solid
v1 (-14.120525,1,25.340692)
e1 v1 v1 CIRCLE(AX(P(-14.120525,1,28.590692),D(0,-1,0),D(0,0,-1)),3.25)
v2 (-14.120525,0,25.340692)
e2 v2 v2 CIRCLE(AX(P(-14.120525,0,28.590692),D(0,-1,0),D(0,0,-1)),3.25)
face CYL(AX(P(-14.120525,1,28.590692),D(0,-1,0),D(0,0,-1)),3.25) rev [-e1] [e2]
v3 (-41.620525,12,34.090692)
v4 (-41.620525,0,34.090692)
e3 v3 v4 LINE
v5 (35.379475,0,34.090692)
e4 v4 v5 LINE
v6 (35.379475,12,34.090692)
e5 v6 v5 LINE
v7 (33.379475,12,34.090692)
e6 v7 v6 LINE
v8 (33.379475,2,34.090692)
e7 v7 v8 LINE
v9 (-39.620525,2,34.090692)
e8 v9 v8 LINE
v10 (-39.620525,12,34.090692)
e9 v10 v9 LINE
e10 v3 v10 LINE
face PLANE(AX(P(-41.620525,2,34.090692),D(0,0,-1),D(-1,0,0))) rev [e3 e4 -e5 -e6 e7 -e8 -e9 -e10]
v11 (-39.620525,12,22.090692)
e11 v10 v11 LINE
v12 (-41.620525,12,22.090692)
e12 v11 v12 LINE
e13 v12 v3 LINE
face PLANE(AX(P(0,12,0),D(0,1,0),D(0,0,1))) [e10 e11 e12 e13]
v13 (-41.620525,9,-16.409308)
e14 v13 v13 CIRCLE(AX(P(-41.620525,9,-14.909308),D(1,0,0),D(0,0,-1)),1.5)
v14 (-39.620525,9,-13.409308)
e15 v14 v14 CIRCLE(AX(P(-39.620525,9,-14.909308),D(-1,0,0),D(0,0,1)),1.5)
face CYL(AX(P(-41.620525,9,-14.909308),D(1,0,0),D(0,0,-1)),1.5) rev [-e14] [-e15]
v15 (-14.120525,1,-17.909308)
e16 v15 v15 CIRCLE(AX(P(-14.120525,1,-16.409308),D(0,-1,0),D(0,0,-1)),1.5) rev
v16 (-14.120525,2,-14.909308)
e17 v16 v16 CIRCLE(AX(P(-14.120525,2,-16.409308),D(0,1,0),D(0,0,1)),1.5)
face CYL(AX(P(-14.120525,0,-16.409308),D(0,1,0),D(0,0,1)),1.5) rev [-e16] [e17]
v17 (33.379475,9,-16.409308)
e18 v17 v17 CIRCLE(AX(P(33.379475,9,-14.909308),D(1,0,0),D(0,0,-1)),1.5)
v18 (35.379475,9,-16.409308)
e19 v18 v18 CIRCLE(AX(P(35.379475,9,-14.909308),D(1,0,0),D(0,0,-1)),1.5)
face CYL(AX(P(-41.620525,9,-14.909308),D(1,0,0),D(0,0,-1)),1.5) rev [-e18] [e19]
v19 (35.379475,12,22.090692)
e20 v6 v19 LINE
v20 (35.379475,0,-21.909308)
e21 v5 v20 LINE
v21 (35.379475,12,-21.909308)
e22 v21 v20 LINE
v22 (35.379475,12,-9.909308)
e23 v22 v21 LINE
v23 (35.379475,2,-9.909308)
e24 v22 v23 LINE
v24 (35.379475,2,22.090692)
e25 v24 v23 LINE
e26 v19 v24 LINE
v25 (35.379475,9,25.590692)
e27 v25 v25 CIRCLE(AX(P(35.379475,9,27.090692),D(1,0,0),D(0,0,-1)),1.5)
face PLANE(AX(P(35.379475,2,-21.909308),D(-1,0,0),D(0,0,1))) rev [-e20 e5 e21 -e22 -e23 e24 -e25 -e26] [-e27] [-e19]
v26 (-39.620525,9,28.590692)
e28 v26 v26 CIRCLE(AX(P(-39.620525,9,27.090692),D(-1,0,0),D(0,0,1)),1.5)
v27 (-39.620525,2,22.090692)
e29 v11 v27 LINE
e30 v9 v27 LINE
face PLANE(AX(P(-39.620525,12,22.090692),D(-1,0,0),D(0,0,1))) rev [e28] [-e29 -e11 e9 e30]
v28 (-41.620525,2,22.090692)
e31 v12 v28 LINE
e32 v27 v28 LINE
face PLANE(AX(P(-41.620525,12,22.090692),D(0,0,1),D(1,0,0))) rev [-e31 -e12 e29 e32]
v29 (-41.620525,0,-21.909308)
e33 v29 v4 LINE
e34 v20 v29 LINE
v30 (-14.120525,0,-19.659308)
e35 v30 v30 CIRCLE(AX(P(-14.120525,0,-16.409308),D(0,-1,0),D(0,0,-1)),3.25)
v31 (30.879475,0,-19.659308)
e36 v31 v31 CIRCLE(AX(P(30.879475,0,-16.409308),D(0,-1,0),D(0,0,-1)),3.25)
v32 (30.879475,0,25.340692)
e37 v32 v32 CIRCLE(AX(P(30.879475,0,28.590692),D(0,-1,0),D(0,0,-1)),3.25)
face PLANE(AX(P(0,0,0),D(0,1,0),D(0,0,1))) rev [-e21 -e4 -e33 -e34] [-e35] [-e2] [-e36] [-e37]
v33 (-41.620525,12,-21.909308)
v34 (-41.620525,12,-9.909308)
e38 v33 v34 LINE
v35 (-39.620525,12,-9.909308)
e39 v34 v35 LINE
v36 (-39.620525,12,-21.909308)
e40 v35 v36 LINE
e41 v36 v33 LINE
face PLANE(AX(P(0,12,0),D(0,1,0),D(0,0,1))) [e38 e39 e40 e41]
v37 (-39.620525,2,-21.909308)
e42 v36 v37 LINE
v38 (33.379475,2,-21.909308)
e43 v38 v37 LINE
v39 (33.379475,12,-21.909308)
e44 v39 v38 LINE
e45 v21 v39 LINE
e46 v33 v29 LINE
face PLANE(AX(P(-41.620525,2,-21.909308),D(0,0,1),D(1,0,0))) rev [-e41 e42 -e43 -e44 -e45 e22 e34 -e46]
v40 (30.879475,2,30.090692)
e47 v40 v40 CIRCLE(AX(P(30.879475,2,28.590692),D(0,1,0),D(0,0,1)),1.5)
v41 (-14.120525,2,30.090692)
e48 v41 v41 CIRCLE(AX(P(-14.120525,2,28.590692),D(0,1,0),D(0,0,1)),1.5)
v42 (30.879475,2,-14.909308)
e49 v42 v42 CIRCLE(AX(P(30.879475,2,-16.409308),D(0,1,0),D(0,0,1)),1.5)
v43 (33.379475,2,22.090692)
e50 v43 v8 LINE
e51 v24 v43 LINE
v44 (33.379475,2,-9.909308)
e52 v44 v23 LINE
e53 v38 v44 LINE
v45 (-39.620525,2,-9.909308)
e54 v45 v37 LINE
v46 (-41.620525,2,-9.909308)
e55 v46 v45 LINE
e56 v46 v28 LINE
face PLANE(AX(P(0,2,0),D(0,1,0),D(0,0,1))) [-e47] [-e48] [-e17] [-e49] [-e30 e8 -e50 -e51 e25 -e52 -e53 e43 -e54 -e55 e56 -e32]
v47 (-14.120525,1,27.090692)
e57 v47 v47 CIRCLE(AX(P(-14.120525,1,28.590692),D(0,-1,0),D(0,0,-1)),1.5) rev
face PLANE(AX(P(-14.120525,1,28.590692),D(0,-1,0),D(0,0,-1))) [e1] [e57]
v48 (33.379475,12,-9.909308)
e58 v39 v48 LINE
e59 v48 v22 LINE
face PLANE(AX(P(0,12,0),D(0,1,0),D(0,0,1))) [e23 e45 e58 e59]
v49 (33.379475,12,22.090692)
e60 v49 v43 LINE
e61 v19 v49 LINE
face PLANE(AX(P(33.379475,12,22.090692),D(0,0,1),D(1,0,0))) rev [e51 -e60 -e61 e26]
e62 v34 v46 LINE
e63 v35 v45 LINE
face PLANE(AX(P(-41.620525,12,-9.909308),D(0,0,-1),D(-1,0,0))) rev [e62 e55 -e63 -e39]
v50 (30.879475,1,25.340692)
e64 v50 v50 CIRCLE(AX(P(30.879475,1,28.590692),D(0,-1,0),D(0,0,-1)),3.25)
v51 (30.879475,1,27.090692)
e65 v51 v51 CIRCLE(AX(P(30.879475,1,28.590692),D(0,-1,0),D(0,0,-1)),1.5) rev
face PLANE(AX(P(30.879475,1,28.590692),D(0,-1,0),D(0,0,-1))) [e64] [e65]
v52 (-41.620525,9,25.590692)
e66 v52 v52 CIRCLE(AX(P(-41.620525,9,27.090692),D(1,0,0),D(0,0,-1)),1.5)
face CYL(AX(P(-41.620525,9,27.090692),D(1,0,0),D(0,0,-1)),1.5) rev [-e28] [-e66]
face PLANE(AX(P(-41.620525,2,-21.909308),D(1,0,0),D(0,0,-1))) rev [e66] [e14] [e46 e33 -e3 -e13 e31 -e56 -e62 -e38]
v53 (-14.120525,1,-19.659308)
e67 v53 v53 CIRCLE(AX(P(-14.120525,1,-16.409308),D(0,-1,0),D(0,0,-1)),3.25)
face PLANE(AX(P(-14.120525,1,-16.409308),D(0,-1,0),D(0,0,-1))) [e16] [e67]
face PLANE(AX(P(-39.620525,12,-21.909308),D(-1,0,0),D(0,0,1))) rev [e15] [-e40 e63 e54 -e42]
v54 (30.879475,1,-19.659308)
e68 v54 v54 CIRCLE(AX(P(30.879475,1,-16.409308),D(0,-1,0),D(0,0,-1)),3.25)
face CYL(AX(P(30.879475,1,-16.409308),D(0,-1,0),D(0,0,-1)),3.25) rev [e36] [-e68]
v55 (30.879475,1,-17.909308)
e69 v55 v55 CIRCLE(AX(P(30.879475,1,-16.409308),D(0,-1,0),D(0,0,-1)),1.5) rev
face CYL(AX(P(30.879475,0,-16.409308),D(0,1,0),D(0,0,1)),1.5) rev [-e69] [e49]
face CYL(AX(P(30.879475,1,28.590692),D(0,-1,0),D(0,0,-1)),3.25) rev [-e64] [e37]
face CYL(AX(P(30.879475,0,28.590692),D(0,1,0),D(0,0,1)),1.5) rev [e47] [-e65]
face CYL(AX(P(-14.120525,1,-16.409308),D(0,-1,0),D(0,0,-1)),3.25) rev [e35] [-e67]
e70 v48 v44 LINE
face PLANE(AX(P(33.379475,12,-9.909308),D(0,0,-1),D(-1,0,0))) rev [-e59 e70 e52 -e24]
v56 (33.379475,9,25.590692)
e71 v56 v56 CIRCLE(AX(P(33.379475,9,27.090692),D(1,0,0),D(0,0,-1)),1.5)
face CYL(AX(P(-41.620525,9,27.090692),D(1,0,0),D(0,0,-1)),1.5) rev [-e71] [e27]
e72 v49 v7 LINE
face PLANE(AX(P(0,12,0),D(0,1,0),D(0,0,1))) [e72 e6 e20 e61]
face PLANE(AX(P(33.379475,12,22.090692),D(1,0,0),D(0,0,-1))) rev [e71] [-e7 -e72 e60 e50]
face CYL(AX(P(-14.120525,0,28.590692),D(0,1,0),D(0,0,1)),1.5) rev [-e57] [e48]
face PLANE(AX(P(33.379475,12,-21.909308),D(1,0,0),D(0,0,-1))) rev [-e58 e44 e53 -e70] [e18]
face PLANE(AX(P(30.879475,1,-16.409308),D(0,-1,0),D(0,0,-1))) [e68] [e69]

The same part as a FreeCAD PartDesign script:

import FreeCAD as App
import Part
import Sketcher
from FreeCAD import Vector
Q = App.Units.Quantity

doc = App.newDocument("Part")
body = doc.addObject("PartDesign::Body", "Body")

sketch1 = body.newObject("Sketcher::SketchObject", "Sketch")
sketch1.AttachmentSupport = (doc.getObject("XZ_Plane"), [""])
sketch1.MapMode = "FlatFace"
sketch1.addGeometry([
    Part.LineSegment(Vector(-41.620525, -21.909308, 0), Vector(-41.620525, 34.090692, 0)),
    Part.LineSegment(Vector(-41.620525, 34.090692, 0), Vector(35.379475, 34.090692, 0)),
    Part.LineSegment(Vector(35.379475, 34.090692, 0), Vector(35.379475, -21.909308, 0)),
    Part.LineSegment(Vector(35.379475, -21.909308, 0), Vector(-41.620525, -21.909308, 0)),
], False)
sketch1.addConstraint([
    Sketcher.Constraint("Coincident", 0, 2, 1, 1),
    Sketcher.Constraint("Coincident", 1, 2, 2, 1),
    Sketcher.Constraint("Coincident", 2, 2, 3, 1),
    Sketcher.Constraint("Coincident", 3, 2, 0, 1),
    Sketcher.Constraint("Vertical", 0),
    Sketcher.Constraint("Horizontal", 1),
    Sketcher.Constraint("Vertical", 2),
    Sketcher.Constraint("Horizontal", 3),
    Sketcher.Constraint("DistanceX", 1, 1, 1, 2, Q("77 mm")),
    Sketcher.Constraint("DistanceY", 0, 1, 0, 2, Q("56 mm")),
    Sketcher.Constraint("DistanceX", 0, 2, -1, 1, Q("41.620525 mm")),
    Sketcher.Constraint("DistanceY", -1, 1, 0, 2, Q("34.090692 mm")),
])
pad1 = body.newObject("PartDesign::Pad", "Pad")
pad1.Profile = sketch1
pad1.Length = 2
pad1.Reversed = True

sketch2 = body.newObject("Sketcher::SketchObject", "Sketch001")
sketch2.AttachmentSupport = (doc.getObject("XZ_Plane"), [""])
sketch2.MapMode = "FlatFace"
sketch2.AttachmentOffset = App.Placement(Vector(0, 0, -2), App.Rotation())
sketch2.addGeometry([
    Part.Circle(Vector(30.879475, -16.409308, 0), Vector(0, 0, 1), 1.5),
    Part.Circle(Vector(30.879475, 28.590692, 0), Vector(0, 0, 1), 1.5),
    Part.Circle(Vector(-14.120525, -16.409308, 0), Vector(0, 0, 1), 1.5),
    Part.Circle(Vector(-14.120525, 28.590692, 0), Vector(0, 0, 1), 1.5),
], False)
sketch2.addConstraint([
    Sketcher.Constraint("Equal", 0, 1),
    Sketcher.Constraint("Equal", 1, 2),
    Sketcher.Constraint("Equal", 2, 3),
    Sketcher.Constraint("Horizontal", 0, 3, 2, 3),
    Sketcher.Constraint("Horizontal", 1, 3, 3, 3),
    Sketcher.Constraint("Vertical", 0, 3, 1, 3),
    Sketcher.Constraint("Vertical", 2, 3, 3, 3),
    Sketcher.Constraint("Diameter", 0, Q("3 mm")),
    Sketcher.Constraint("DistanceY", 0, 3, 1, 3, Q("45 mm")),
    Sketcher.Constraint("DistanceX", 2, 3, 0, 3, Q("45 mm")),
    Sketcher.Constraint("DistanceX", -1, 1, 0, 3, Q("30.879475 mm")),
    Sketcher.Constraint("DistanceY", 0, 3, -1, 1, Q("16.409308 mm")),
])
pocket1 = body.newObject("PartDesign::Pocket", "Pocket")
pocket1.Profile = sketch2
pocket1.Type = "ThroughAll"
pocket1.Reversed = True

sketch3 = body.newObject("Sketcher::SketchObject", "Sketch002")
sketch3.AttachmentSupport = (doc.getObject("XZ_Plane"), [""])
sketch3.MapMode = "FlatFace"
sketch3.AttachmentOffset = App.Placement(Vector(0, 0, -2), App.Rotation())
sketch3.addGeometry([
    Part.LineSegment(Vector(33.379475, -21.909308, 0), Vector(33.379475, -9.909308, 0)),
    Part.LineSegment(Vector(33.379475, -9.909308, 0), Vector(35.379475, -9.909308, 0)),
    Part.LineSegment(Vector(35.379475, -9.909308, 0), Vector(35.379475, -21.909308, 0)),
    Part.LineSegment(Vector(35.379475, -21.909308, 0), Vector(33.379475, -21.909308, 0)),
    Part.LineSegment(Vector(33.379475, 22.090692, 0), Vector(33.379475, 34.090692, 0)),
    Part.LineSegment(Vector(33.379475, 34.090692, 0), Vector(35.379475, 34.090692, 0)),
    Part.LineSegment(Vector(35.379475, 34.090692, 0), Vector(35.379475, 22.090692, 0)),
    Part.LineSegment(Vector(35.379475, 22.090692, 0), Vector(33.379475, 22.090692, 0)),
    Part.LineSegment(Vector(-41.620525, -21.909308, 0), Vector(-41.620525, -9.909308, 0)),
    Part.LineSegment(Vector(-41.620525, -9.909308, 0), Vector(-39.620525, -9.909308, 0)),
    Part.LineSegment(Vector(-39.620525, -9.909308, 0), Vector(-39.620525, -21.909308, 0)),
    Part.LineSegment(Vector(-39.620525, -21.909308, 0), Vector(-41.620525, -21.909308, 0)),
    Part.LineSegment(Vector(-41.620525, 22.090692, 0), Vector(-41.620525, 34.090692, 0)),
    Part.LineSegment(Vector(-41.620525, 34.090692, 0), Vector(-39.620525, 34.090692, 0)),
    Part.LineSegment(Vector(-39.620525, 34.090692, 0), Vector(-39.620525, 22.090692, 0)),
    Part.LineSegment(Vector(-39.620525, 22.090692, 0), Vector(-41.620525, 22.090692, 0)),
], False)
sketch3.addConstraint([
    Sketcher.Constraint("Coincident", 0, 2, 1, 1),
    Sketcher.Constraint("Coincident", 1, 2, 2, 1),
    Sketcher.Constraint("Coincident", 2, 2, 3, 1),
    Sketcher.Constraint("Coincident", 3, 2, 0, 1),
    Sketcher.Constraint("Coincident", 4, 2, 5, 1),
    Sketcher.Constraint("Coincident", 5, 2, 6, 1),
    Sketcher.Constraint("Coincident", 6, 2, 7, 1),
    Sketcher.Constraint("Coincident", 7, 2, 4, 1),
    Sketcher.Constraint("Coincident", 8, 2, 9, 1),
    Sketcher.Constraint("Coincident", 9, 2, 10, 1),
    Sketcher.Constraint("Coincident", 10, 2, 11, 1),
    Sketcher.Constraint("Coincident", 11, 2, 8, 1),
    Sketcher.Constraint("Coincident", 12, 2, 13, 1),
    Sketcher.Constraint("Coincident", 13, 2, 14, 1),
    Sketcher.Constraint("Coincident", 14, 2, 15, 1),
    Sketcher.Constraint("Coincident", 15, 2, 12, 1),
    Sketcher.Constraint("Vertical", 0),
    Sketcher.Constraint("Horizontal", 1),
    Sketcher.Constraint("Vertical", 2),
    Sketcher.Constraint("Horizontal", 3),
    Sketcher.Constraint("Vertical", 4),
    Sketcher.Constraint("Horizontal", 5),
    Sketcher.Constraint("Vertical", 6),
    Sketcher.Constraint("Horizontal", 7),
    Sketcher.Constraint("Vertical", 8),
    Sketcher.Constraint("Horizontal", 9),
    Sketcher.Constraint("Vertical", 10),
    Sketcher.Constraint("Horizontal", 11),
    Sketcher.Constraint("Vertical", 12),
    Sketcher.Constraint("Horizontal", 13),
    Sketcher.Constraint("Vertical", 14),
    Sketcher.Constraint("Horizontal", 15),
    Sketcher.Constraint("Horizontal", 1, 2, 8, 2),
    Sketcher.Constraint("Horizontal", 3, 2, 10, 2),
    Sketcher.Constraint("Horizontal", 5, 2, 12, 2),
    Sketcher.Constraint("Horizontal", 7, 2, 14, 2),
    Sketcher.Constraint("Vertical", 3, 2, 4, 2),
    Sketcher.Constraint("Vertical", 2, 2, 5, 2),
    Sketcher.Constraint("Vertical", 11, 2, 12, 2),
    Sketcher.Constraint("Vertical", 10, 2, 13, 2),
    Sketcher.Constraint("Equal", 7, 9),
    Sketcher.Constraint("Equal", 2, 4),
    Sketcher.Constraint("DistanceX", 1, 1, 1, 2, Q("2 mm")),
    Sketcher.Constraint("DistanceY", 0, 1, 0, 2, Q("12 mm")),
    Sketcher.Constraint("DistanceY", 0, 2, 4, 2, Q("44 mm")),
    Sketcher.Constraint("DistanceX", 8, 2, 0, 2, Q("75 mm")),
    Sketcher.Constraint("DistanceX", -1, 1, 0, 2, Q("33.379475 mm")),
    Sketcher.Constraint("DistanceY", 0, 2, -1, 1, Q("9.909308 mm")),
])
pad2 = body.newObject("PartDesign::Pad", "Pad001")
pad2.Profile = sketch3
pad2.Length = 10
pad2.Reversed = True

sketch4 = body.newObject("Sketcher::SketchObject", "Sketch003")
sketch4.AttachmentSupport = (doc.getObject("YZ_Plane"), [""])
sketch4.MapMode = "FlatFace"
sketch4.AttachmentOffset = App.Placement(Vector(0, 0, 35.379475), App.Rotation())
sketch4.addGeometry([
    Part.Circle(Vector(9, 27.090692, 0), Vector(0, 0, 1), 1.5),
    Part.Circle(Vector(9, -14.909308, 0), Vector(0, 0, 1), 1.5),
], False)
sketch4.addConstraint([
    Sketcher.Constraint("Equal", 0, 1),
    Sketcher.Constraint("Vertical", 0, 3, 1, 3),
    Sketcher.Constraint("Diameter", 0, Q("3 mm")),
    Sketcher.Constraint("DistanceX", -1, 1, 0, 3, Q("9 mm")),
    Sketcher.Constraint("DistanceY", 1, 3, 0, 3, Q("42 mm")),
    Sketcher.Constraint("DistanceY", -1, 1, 0, 3, Q("27.090692 mm")),
])
pocket2 = body.newObject("PartDesign::Pocket", "Pocket001")
pocket2.Profile = sketch4
pocket2.Type = "ThroughAll"

sketch5 = body.newObject("Sketcher::SketchObject", "Sketch004")
sketch5.AttachmentSupport = (doc.getObject("XZ_Plane"), [""])
sketch5.MapMode = "FlatFace"
sketch5.addGeometry([
    Part.Circle(Vector(-14.120525, 28.590692, 0), Vector(0, 0, 1), 3.25),
    Part.Circle(Vector(30.879475, 28.590692, 0), Vector(0, 0, 1), 3.25),
    Part.Circle(Vector(30.879475, -16.409308, 0), Vector(0, 0, 1), 3.25),
    Part.Circle(Vector(-14.120525, -16.409308, 0), Vector(0, 0, 1), 3.25),
], False)
sketch5.addConstraint([
    Sketcher.Constraint("Equal", 0, 1),
    Sketcher.Constraint("Equal", 1, 2),
    Sketcher.Constraint("Equal", 2, 3),
    Sketcher.Constraint("Horizontal", 0, 3, 1, 3),
    Sketcher.Constraint("Horizontal", 2, 3, 3, 3),
    Sketcher.Constraint("Vertical", 1, 3, 2, 3),
    Sketcher.Constraint("Vertical", 0, 3, 3, 3),
    Sketcher.Constraint("Diameter", 0, Q("6.5 mm")),
    Sketcher.Constraint("DistanceX", 0, 3, 1, 3, Q("45 mm")),
    Sketcher.Constraint("DistanceY", 2, 3, 1, 3, Q("45 mm")),
    Sketcher.Constraint("DistanceX", 0, 3, -1, 1, Q("14.120525 mm")),
    Sketcher.Constraint("DistanceY", -1, 1, 0, 3, Q("28.590692 mm")),
])
pocket3 = body.newObject("PartDesign::Pocket", "Pocket002")
pocket3.Profile = sketch5
pocket3.Length = 1

doc.recompute()
